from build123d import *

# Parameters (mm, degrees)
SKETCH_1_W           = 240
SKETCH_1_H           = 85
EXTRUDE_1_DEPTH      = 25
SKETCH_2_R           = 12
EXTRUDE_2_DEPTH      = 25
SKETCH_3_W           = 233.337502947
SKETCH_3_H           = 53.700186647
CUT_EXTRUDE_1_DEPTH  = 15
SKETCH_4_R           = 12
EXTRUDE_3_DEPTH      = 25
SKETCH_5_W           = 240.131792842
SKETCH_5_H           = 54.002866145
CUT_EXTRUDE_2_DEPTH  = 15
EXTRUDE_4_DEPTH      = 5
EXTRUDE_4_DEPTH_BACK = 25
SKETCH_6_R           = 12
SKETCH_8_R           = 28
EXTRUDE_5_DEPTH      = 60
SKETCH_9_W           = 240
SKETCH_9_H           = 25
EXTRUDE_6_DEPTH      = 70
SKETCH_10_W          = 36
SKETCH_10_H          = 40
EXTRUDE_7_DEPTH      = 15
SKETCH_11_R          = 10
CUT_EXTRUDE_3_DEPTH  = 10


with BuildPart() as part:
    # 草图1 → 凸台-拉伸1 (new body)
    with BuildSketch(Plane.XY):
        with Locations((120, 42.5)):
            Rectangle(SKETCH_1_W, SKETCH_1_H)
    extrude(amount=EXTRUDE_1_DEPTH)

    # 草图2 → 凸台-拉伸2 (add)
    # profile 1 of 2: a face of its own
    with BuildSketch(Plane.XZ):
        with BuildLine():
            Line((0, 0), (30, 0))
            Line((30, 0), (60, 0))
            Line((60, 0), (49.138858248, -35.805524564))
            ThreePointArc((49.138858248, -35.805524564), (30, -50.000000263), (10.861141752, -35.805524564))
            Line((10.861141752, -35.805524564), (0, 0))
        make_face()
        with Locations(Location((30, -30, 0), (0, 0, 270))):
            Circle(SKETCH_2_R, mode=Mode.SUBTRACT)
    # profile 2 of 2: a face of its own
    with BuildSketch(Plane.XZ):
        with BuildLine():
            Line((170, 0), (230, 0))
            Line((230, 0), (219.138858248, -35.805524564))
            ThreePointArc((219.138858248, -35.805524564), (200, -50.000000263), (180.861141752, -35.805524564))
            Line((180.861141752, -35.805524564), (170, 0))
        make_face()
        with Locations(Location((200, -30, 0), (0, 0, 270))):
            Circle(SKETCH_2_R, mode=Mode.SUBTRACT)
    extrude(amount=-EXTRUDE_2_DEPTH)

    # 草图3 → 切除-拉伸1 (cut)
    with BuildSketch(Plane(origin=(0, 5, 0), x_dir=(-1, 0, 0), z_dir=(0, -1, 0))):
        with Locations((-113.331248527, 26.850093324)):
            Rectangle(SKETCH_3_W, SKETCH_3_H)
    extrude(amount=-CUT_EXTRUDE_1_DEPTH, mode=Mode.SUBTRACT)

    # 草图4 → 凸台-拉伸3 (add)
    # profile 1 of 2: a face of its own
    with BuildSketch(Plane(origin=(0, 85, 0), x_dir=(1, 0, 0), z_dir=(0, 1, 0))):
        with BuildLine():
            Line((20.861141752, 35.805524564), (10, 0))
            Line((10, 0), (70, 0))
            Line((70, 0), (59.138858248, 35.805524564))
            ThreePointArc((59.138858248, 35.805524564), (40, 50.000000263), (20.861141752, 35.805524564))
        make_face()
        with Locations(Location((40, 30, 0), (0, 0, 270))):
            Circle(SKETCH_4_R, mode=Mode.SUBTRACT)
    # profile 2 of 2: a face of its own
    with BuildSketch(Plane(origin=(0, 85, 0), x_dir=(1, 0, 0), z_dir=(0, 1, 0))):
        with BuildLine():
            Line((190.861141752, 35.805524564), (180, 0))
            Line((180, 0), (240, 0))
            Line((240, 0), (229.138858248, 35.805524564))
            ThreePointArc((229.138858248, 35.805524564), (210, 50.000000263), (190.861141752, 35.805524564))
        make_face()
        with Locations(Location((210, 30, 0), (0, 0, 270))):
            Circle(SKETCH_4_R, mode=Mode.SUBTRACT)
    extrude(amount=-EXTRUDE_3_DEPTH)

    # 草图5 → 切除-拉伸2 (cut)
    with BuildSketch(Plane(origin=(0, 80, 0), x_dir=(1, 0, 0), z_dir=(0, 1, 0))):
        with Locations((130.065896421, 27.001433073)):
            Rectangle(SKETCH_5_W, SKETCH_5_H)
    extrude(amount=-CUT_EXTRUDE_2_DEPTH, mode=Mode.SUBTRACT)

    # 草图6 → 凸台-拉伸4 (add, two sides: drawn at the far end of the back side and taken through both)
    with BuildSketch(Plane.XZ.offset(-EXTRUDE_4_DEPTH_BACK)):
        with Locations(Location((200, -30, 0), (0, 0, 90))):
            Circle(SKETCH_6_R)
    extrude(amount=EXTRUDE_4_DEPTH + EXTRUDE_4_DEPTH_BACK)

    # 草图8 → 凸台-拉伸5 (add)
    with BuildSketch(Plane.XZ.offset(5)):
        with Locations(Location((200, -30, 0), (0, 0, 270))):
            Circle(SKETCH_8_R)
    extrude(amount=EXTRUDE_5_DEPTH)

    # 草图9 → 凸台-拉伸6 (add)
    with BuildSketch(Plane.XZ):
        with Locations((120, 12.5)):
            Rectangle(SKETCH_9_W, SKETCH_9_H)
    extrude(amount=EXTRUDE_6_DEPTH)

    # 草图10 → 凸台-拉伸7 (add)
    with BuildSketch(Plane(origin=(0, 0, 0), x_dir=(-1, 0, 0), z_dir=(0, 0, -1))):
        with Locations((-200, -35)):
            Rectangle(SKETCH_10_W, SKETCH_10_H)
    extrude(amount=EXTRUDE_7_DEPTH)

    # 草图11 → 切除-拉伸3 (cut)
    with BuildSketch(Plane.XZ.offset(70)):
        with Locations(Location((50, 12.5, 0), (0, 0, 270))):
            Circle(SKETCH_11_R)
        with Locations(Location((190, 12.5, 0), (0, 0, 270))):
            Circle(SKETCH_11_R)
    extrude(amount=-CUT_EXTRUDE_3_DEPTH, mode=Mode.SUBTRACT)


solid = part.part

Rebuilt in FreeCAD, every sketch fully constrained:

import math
import FreeCAD as App
import Part
import Sketcher

V = App.Vector


def add_polygon(sketch, points):
    """Adds a closed chain of lines whose ends are joined by coincident constraints."""
    first, n = sketch.GeometryCount, len(points)
    for a, b in zip(points, points[1:] + points[:1]):
        sketch.addGeometry(Part.LineSegment(App.Vector(*a, 0), App.Vector(*b, 0)), False)
    for i in range(n):
        sketch.addConstraint(Sketcher.Constraint("Coincident", first + i, 2, first + (i + 1) % n, 1))

doc = App.newDocument("Part")
params = doc.addObject("Spreadsheet::Sheet", "Params")
for row, (alias, value) in enumerate([
    ("sketch1_width", "240 mm"),
    ("sketch1_height", "85 mm"),
    ("pad1_length", "25 mm"),
    ("sketch2_diameter", "24 mm"),
    ("sketch2_radius", "20 mm"),
    ("sketch2_width", "60 mm"),
    ("pad2_length", "25 mm"),
    ("pocket1_length", "15 mm"),
    ("sketch4_diameter", "24 mm"),
    ("sketch4_radius", "20 mm"),
    ("sketch4_width", "60 mm"),
    ("pad3_length", "25 mm"),
    ("pocket2_length", "15 mm"),
    ("sketch6_diameter", "24 mm"),
    ("pad4_length", "5 mm"),
    ("pad4_length2", "25 mm"),
    ("sketch7_diameter", "56 mm"),
    ("pad5_length", "60 mm"),
    ("sketch8_width", "240 mm"),
    ("sketch8_height", "25 mm"),
    ("pad6_length", "70 mm"),
    ("sketch9_width", "36 mm"),
    ("sketch9_height", "40 mm"),
    ("pad7_length", "15 mm"),
    ("sketch10_diameter", "20 mm"),
    ("pocket3_length", "10 mm"),
], start=1):
    params.set(f"A{row}", alias)
    params.set(f"B{row}", "=" + value)
    params.setAlias(f"B{row}", alias)

body = doc.addObject("PartDesign::Body", "Body")

# Sketch on XY plane
sketch1 = body.newObject("Sketcher::SketchObject", "Sketch")
sketch1.AttachmentSupport = (doc.getObject("XY_Plane"), [""])
sketch1.MapMode = "FlatFace"
add_polygon(sketch1, [(0, 85), (0, 0), (240, 0), (240, 85)])  # lines 0-3
sketch1.addConstraint(Sketcher.Constraint("Vertical", 0))
sketch1.addConstraint(Sketcher.Constraint("Horizontal", 1))
sketch1.addConstraint(Sketcher.Constraint("Vertical", 2))
sketch1.addConstraint(Sketcher.Constraint("Horizontal", 3))
sketch1.addConstraint(Sketcher.Constraint("Coincident", 0, 2, -1, 1))
sketch1.addConstraint(Sketcher.Constraint("DistanceX", 1, 1, 1, 2, 240.0))
sketch1.addConstraint(Sketcher.Constraint("DistanceY", 0, 2, 0, 1, 85.0))
sketch1.setExpression("Constraints[9]", "Params.sketch1_width")
sketch1.setExpression("Constraints[10]", "Params.sketch1_height")
pad1 = body.newObject("PartDesign::Pad", "Pad")
pad1.Profile = sketch1
pad1.setExpression("Length", "Params.pad1_length")

# Sketch on XZ plane
sketch2 = body.newObject("Sketcher::SketchObject", "Sketch001")
sketch2.AttachmentSupport = (doc.getObject("XZ_Plane"), [""])
sketch2.MapMode = "FlatFace"
sketch2.addGeometry(Part.LineSegment(V(60, 0, 0), V(0, 0, 0)), False)
sketch2.addGeometry(Part.LineSegment(V(0, 0, 0), V(11, -36, 0)), False)
sketch2.addGeometry(Part.ArcOfCircle(Part.Circle(V(30, -30, 0), V(0, 0, 1), 20), math.radians(-163), math.radians(-17)), False)
sketch2.addGeometry(Part.LineSegment(V(49, -36, 0), V(60, 0, 0)), False)
sketch2.addGeometry(Part.Circle(V(30, -30, 0), V(0, 0, 1), 12), False)
sketch2.addGeometry(Part.LineSegment(V(230, 0, 0), V(170, 0, 0)), False)
sketch2.addGeometry(Part.LineSegment(V(170, 0, 0), V(181, -36, 0)), False)
sketch2.addGeometry(Part.ArcOfCircle(Part.Circle(V(200, -30, 0), V(0, 0, 1), 20), math.radians(-163), math.radians(-17)), False)
sketch2.addGeometry(Part.LineSegment(V(219, -36, 0), V(230, 0, 0)), False)
sketch2.addGeometry(Part.Circle(V(200, -30, 0), V(0, 0, 1), 12), False)
sketch2.addConstraint(Sketcher.Constraint("Coincident", 0, 2, 1, 1))
sketch2.addConstraint(Sketcher.Constraint("Tangent", 1, 2, 2, 1))
sketch2.addConstraint(Sketcher.Constraint("Tangent", 2, 2, 3, 1))
sketch2.addConstraint(Sketcher.Constraint("Coincident", 3, 2, 0, 1))
sketch2.addConstraint(Sketcher.Constraint("Coincident", 5, 2, 6, 1))
sketch2.addConstraint(Sketcher.Constraint("Tangent", 6, 2, 7, 1))
sketch2.addConstraint(Sketcher.Constraint("Tangent", 7, 2, 8, 1))
sketch2.addConstraint(Sketcher.Constraint("Coincident", 8, 2, 5, 1))
sketch2.addConstraint(Sketcher.Constraint("Horizontal", 0))
sketch2.addConstraint(Sketcher.Constraint("Horizontal", 5))
sketch2.addConstraint(Sketcher.Constraint("Coincident", 0, 2, -1, 1))
sketch2.addConstraint(Sketcher.Constraint("Coincident", 4, 3, 2, 3))
sketch2.addConstraint(Sketcher.Constraint("Coincident", 9, 3, 7, 3))
sketch2.addConstraint(Sketcher.Constraint("Equal", 2, 7))
sketch2.addConstraint(Sketcher.Constraint("Equal", 4, 9))
sketch2.addConstraint(Sketcher.Constraint("PointOnObject", 5, 2, -1))
sketch2.addConstraint(Sketcher.Constraint("Parallel", 1, 6))
sketch2.addConstraint(Sketcher.Constraint("Parallel", 3, 8))
sketch2.addConstraint(Sketcher.Constraint("Horizontal", 4, 3, 7, 3))
sketch2.addConstraint(Sketcher.Constraint("Horizontal", 1, 2, 2, 2))
sketch2.addConstraint(Sketcher.Constraint("Diameter", 4, 24.0))
sketch2.addConstraint(Sketcher.Constraint("Radius", 2, 20.0))
sketch2.addConstraint(Sketcher.Constraint("DistanceX", 0, 2, 0, 1, 60.0))
sketch2.addConstraint(Sketcher.Constraint("DistanceY", 2, 3, -1, 1, 30.0))
sketch2.addConstraint(Sketcher.Constraint("DistanceX", -1, 1, 7, 3, 200.0))
sketch2.setExpression("Constraints[20]", "Params.sketch2_diameter")
sketch2.setExpression("Constraints[21]", "Params.sketch2_radius")
sketch2.setExpression("Constraints[22]", "Params.sketch2_width")
pad2 = body.newObject("PartDesign::Pad", "Pad001")
pad2.Profile = sketch2
pad2.setExpression("Length", "Params.pad2_length")
pad2.Reversed = True

# Sketch on XZ plane
sketch3 = body.newObject("Sketcher::SketchObject", "Sketch002")
sketch3.AttachmentSupport = (doc.getObject("XZ_Plane"), [""])
sketch3.MapMode = "FlatFace"
sketch3.AttachmentOffset = App.Placement(V(0, 0, -5), App.Rotation())
add_polygon(sketch3, [(230, -54), (230, 0), (-3, 0), (-3, -54)])  # lines 0-3
sketch3.addConstraint(Sketcher.Constraint("Vertical", 0))
sketch3.addConstraint(Sketcher.Constraint("Horizontal", 1))
sketch3.addConstraint(Sketcher.Constraint("Vertical", 2))
sketch3.addConstraint(Sketcher.Constraint("Horizontal", 3))
sketch3.addConstraint(Sketcher.Constraint("PointOnObject", 0, 2, -1))
sketch3.addConstraint(Sketcher.Constraint("DistanceX", -1, 1, 0, 2, 230.0))
sketch3.addConstraint(Sketcher.Constraint("DistanceX", 1, 2, 1, 1, 233.337503))
sketch3.addConstraint(Sketcher.Constraint("DistanceY", 0, 1, 0, 2, 53.700187))
pocket1 = body.newObject("PartDesign::Pocket", "Pocket")
pocket1.Profile = sketch3
pocket1.setExpression("Length", "Params.pocket1_length")

# Sketch on XZ plane
sketch4 = body.newObject("Sketcher::SketchObject", "Sketch003")
sketch4.AttachmentSupport = (doc.getObject("XZ_Plane"), [""])
sketch4.MapMode = "FlatFace"
sketch4.AttachmentOffset = App.Placement(V(0, 0, -85), App.Rotation())
sketch4.addGeometry(Part.LineSegment(V(21, -36, 0), V(10, 0, 0)), False)
sketch4.addGeometry(Part.LineSegment(V(10, 0, 0), V(70, 0, 0)), False)
sketch4.addGeometry(Part.LineSegment(V(70, 0, 0), V(59, -36, 0)), False)
sketch4.addGeometry(Part.ArcOfCircle(Part.Circle(V(40, -30, 0), V(0, 0, 1), 20), math.radians(-163), math.radians(-17)), False)
sketch4.addGeometry(Part.Circle(V(40, -30, 0), V(0, 0, 1), 12), False)
sketch4.addGeometry(Part.LineSegment(V(191, -36, 0), V(180, 0, 0)), False)
sketch4.addGeometry(Part.LineSegment(V(180, 0, 0), V(240, 0, 0)), False)
sketch4.addGeometry(Part.LineSegment(V(240, 0, 0), V(229, -36, 0)), False)
sketch4.addGeometry(Part.ArcOfCircle(Part.Circle(V(210, -30, 0), V(0, 0, 1), 20), math.radians(-163), math.radians(-17)), False)
sketch4.addGeometry(Part.Circle(V(210, -30, 0), V(0, 0, 1), 12), False)
sketch4.addConstraint(Sketcher.Constraint("Coincident", 0, 2, 1, 1))
sketch4.addConstraint(Sketcher.Constraint("Coincident", 1, 2, 2, 1))
sketch4.addConstraint(Sketcher.Constraint("Tangent", 2, 2, 3, 2))
sketch4.addConstraint(Sketcher.Constraint("Tangent", 3, 1, 0, 1))
sketch4.addConstraint(Sketcher.Constraint("Coincident", 5, 2, 6, 1))
sketch4.addConstraint(Sketcher.Constraint("Coincident", 6, 2, 7, 1))
sketch4.addConstraint(Sketcher.Constraint("Tangent", 7, 2, 8, 2))
sketch4.addConstraint(Sketcher.Constraint("Tangent", 8, 1, 5, 1))
sketch4.addConstraint(Sketcher.Constraint("Horizontal", 1))
sketch4.addConstraint(Sketcher.Constraint("Horizontal", 6))
sketch4.addConstraint(Sketcher.Constraint("Coincident", 4, 3, 3, 3))
sketch4.addConstraint(Sketcher.Constraint("Coincident", 9, 3, 8, 3))
sketch4.addConstraint(Sketcher.Constraint("Equal", 3, 8))
sketch4.addConstraint(Sketcher.Constraint("Equal", 4, 9))
sketch4.addConstraint(Sketcher.Constraint("PointOnObject", 0, 2, -1))
sketch4.addConstraint(Sketcher.Constraint("PointOnObject", 5, 2, -1))
sketch4.addConstraint(Sketcher.Constraint("Parallel", 0, 5))
sketch4.addConstraint(Sketcher.Constraint("Parallel", 2, 7))
sketch4.addConstraint(Sketcher.Constraint("Horizontal", 4, 3, 8, 3))
sketch4.addConstraint(Sketcher.Constraint("Horizontal", 2, 2, 3, 1))
sketch4.addConstraint(Sketcher.Constraint("Diameter", 4, 24.0))
sketch4.addConstraint(Sketcher.Constraint("Radius", 3, 20.0))
sketch4.addConstraint(Sketcher.Constraint("DistanceX", 1, 1, 1, 2, 60.0))
sketch4.addConstraint(Sketcher.Constraint("DistanceX", -1, 1, 3, 3, 40.0))
sketch4.addConstraint(Sketcher.Constraint("DistanceY", 3, 3, -1, 1, 30.0))
sketch4.addConstraint(Sketcher.Constraint("DistanceX", -1, 1, 8, 3, 210.0))
sketch4.setExpression("Constraints[20]", "Params.sketch4_diameter")
sketch4.setExpression("Constraints[21]", "Params.sketch4_radius")
sketch4.setExpression("Constraints[22]", "Params.sketch4_width")
pad3 = body.newObject("PartDesign::Pad", "Pad002")
pad3.Profile = sketch4
pad3.setExpression("Length", "Params.pad3_length")

# Sketch on XZ plane
sketch5 = body.newObject("Sketcher::SketchObject", "Sketch004")
sketch5.AttachmentSupport = (doc.getObject("XZ_Plane"), [""])
sketch5.MapMode = "FlatFace"
sketch5.AttachmentOffset = App.Placement(V(0, 0, -80), App.Rotation())
add_polygon(sketch5, [(10, -54), (10, 0), (250, 0), (250, -54)])  # lines 0-3
sketch5.addConstraint(Sketcher.Constraint("Vertical", 0))
sketch5.addConstraint(Sketcher.Constraint("Horizontal", 1))
sketch5.addConstraint(Sketcher.Constraint("Vertical", 2))
sketch5.addConstraint(Sketcher.Constraint("Horizontal", 3))
sketch5.addConstraint(Sketcher.Constraint("PointOnObject", 0, 2, -1))
sketch5.addConstraint(Sketcher.Constraint("DistanceX", -1, 1, 0, 2, 10.0))
sketch5.addConstraint(Sketcher.Constraint("DistanceX", 1, 1, 1, 2, 240.131793))
sketch5.addConstraint(Sketcher.Constraint("DistanceY", 0, 1, 0, 2, 54.002866))
pocket2 = body.newObject("PartDesign::Pocket", "Pocket001")
pocket2.Profile = sketch5
pocket2.setExpression("Length", "Params.pocket2_length")
pocket2.Reversed = True

# Sketch on XZ plane
sketch6 = body.newObject("Sketcher::SketchObject", "Sketch005")
sketch6.AttachmentSupport = (doc.getObject("XZ_Plane"), [""])
sketch6.MapMode = "FlatFace"
sketch6.addGeometry(Part.Circle(V(200, -30, 0), V(0, 0, 1), 12), False)
sketch6.addConstraint(Sketcher.Constraint("Diameter", 0, 24.0))
sketch6.addConstraint(Sketcher.Constraint("DistanceX", -1, 1, 0, 3, 200.0))
sketch6.addConstraint(Sketcher.Constraint("DistanceY", 0, 3, -1, 1, 30.0))
sketch6.setExpression("Constraints[0]", "Params.sketch6_diameter")
pad4 = body.newObject("PartDesign::Pad", "Pad003")
pad4.Profile = sketch6
pad4.Type = "TwoLengths"
pad4.setExpression("Length", "Params.pad4_length")
pad4.setExpression("Length2", "Params.pad4_length2")

# Sketch on XZ plane
sketch7 = body.newObject("Sketcher::SketchObject", "Sketch006")
sketch7.AttachmentSupport = (doc.getObject("XZ_Plane"), [""])
sketch7.MapMode = "FlatFace"
sketch7.AttachmentOffset = App.Placement(V(0, 0, 5), App.Rotation())
sketch7.addGeometry(Part.Circle(V(200, -30, 0), V(0, 0, 1), 28), False)
sketch7.addConstraint(Sketcher.Constraint("Diameter", 0, 56.0))
sketch7.addConstraint(Sketcher.Constraint("DistanceX", -1, 1, 0, 3, 200.0))
sketch7.addConstraint(Sketcher.Constraint("DistanceY", 0, 3, -1, 1, 30.0))
sketch7.setExpression("Constraints[0]", "Params.sketch7_diameter")
pad5 = body.newObject("PartDesign::Pad", "Pad004")
pad5.Profile = sketch7
pad5.setExpression("Length", "Params.pad5_length")

# Sketch on XZ plane
sketch8 = body.newObject("Sketcher::SketchObject", "Sketch007")
sketch8.AttachmentSupport = (doc.getObject("XZ_Plane"), [""])
sketch8.MapMode = "FlatFace"
add_polygon(sketch8, [(0, 25), (0, 0), (240, 0), (240, 25)])  # lines 0-3
sketch8.addConstraint(Sketcher.Constraint("Vertical", 0))
sketch8.addConstraint(Sketcher.Constraint("Horizontal", 1))
sketch8.addConstraint(Sketcher.Constraint("Vertical", 2))
sketch8.addConstraint(Sketcher.Constraint("Horizontal", 3))
sketch8.addConstraint(Sketcher.Constraint("Coincident", 0, 2, -1, 1))
sketch8.addConstraint(Sketcher.Constraint("DistanceX", 1, 1, 1, 2, 240.0))
sketch8.addConstraint(Sketcher.Constraint("DistanceY", 0, 2, 0, 1, 25.0))
sketch8.setExpression("Constraints[9]", "Params.sketch8_width")
sketch8.setExpression("Constraints[10]", "Params.sketch8_height")
pad6 = body.newObject("PartDesign::Pad", "Pad005")
pad6.Profile = sketch8
pad6.setExpression("Length", "Params.pad6_length")

# Sketch on XY plane
sketch9 = body.newObject("Sketcher::SketchObject", "Sketch008")
sketch9.AttachmentSupport = (doc.getObject("XY_Plane"), [""])
sketch9.MapMode = "FlatFace"
add_polygon(sketch9, [(218, -15), (218, -55), (182, -55), (182, -15)])  # lines 0-3
sketch9.addConstraint(Sketcher.Constraint("Vertical", 0))
sketch9.addConstraint(Sketcher.Constraint("Horizontal", 1))
sketch9.addConstraint(Sketcher.Constraint("Vertical", 2))
sketch9.addConstraint(Sketcher.Constraint("Horizontal", 3))
sketch9.addConstraint(Sketcher.Constraint("DistanceX", 1, 2, 1, 1, 36.0))
sketch9.addConstraint(Sketcher.Constraint("DistanceY", 0, 2, 0, 1, 40.0))
sketch9.addConstraint(Sketcher.Constraint("DistanceX", -1, 1, 0, 2, 218.0))
sketch9.addConstraint(Sketcher.Constraint("DistanceY", 0, 2, -1, 1, 55.0))
sketch9.setExpression("Constraints[8]", "Params.sketch9_width")
sketch9.setExpression("Constraints[9]", "Params.sketch9_height")
pad7 = body.newObject("PartDesign::Pad", "Pad006")
pad7.Profile = sketch9
pad7.setExpression("Length", "Params.pad7_length")
pad7.Reversed = True

# Sketch on XZ plane
sketch10 = body.newObject("Sketcher::SketchObject", "Sketch009")
sketch10.AttachmentSupport = (doc.getObject("XZ_Plane"), [""])
sketch10.MapMode = "FlatFace"
sketch10.AttachmentOffset = App.Placement(V(0, 0, 70), App.Rotation())
sketch10.addGeometry(Part.Circle(V(50, 12, 0), V(0, 0, 1), 10), False)
sketch10.addGeometry(Part.Circle(V(190, 12, 0), V(0, 0, 1), 10), False)
sketch10.addConstraint(Sketcher.Constraint("Equal", 0, 1))
sketch10.addConstraint(Sketcher.Constraint("Horizontal", 0, 3, 1, 3))
sketch10.addConstraint(Sketcher.Constraint("Diameter", 0, 20.0))
sketch10.addConstraint(Sketcher.Constraint("DistanceX", -1, 1, 0, 3, 50.0))
sketch10.addConstraint(Sketcher.Constraint("DistanceX", -1, 1, 1, 3, 190.0))
sketch10.addConstraint(Sketcher.Constraint("DistanceY", -1, 1, 0, 3, 12.5))
sketch10.setExpression("Constraints[2]", "Params.sketch10_diameter")
pocket3 = body.newObject("PartDesign::Pocket", "Pocket002")
pocket3.Profile = sketch10
pocket3.setExpression("Length", "Params.pocket3_length")

doc.recompute()
